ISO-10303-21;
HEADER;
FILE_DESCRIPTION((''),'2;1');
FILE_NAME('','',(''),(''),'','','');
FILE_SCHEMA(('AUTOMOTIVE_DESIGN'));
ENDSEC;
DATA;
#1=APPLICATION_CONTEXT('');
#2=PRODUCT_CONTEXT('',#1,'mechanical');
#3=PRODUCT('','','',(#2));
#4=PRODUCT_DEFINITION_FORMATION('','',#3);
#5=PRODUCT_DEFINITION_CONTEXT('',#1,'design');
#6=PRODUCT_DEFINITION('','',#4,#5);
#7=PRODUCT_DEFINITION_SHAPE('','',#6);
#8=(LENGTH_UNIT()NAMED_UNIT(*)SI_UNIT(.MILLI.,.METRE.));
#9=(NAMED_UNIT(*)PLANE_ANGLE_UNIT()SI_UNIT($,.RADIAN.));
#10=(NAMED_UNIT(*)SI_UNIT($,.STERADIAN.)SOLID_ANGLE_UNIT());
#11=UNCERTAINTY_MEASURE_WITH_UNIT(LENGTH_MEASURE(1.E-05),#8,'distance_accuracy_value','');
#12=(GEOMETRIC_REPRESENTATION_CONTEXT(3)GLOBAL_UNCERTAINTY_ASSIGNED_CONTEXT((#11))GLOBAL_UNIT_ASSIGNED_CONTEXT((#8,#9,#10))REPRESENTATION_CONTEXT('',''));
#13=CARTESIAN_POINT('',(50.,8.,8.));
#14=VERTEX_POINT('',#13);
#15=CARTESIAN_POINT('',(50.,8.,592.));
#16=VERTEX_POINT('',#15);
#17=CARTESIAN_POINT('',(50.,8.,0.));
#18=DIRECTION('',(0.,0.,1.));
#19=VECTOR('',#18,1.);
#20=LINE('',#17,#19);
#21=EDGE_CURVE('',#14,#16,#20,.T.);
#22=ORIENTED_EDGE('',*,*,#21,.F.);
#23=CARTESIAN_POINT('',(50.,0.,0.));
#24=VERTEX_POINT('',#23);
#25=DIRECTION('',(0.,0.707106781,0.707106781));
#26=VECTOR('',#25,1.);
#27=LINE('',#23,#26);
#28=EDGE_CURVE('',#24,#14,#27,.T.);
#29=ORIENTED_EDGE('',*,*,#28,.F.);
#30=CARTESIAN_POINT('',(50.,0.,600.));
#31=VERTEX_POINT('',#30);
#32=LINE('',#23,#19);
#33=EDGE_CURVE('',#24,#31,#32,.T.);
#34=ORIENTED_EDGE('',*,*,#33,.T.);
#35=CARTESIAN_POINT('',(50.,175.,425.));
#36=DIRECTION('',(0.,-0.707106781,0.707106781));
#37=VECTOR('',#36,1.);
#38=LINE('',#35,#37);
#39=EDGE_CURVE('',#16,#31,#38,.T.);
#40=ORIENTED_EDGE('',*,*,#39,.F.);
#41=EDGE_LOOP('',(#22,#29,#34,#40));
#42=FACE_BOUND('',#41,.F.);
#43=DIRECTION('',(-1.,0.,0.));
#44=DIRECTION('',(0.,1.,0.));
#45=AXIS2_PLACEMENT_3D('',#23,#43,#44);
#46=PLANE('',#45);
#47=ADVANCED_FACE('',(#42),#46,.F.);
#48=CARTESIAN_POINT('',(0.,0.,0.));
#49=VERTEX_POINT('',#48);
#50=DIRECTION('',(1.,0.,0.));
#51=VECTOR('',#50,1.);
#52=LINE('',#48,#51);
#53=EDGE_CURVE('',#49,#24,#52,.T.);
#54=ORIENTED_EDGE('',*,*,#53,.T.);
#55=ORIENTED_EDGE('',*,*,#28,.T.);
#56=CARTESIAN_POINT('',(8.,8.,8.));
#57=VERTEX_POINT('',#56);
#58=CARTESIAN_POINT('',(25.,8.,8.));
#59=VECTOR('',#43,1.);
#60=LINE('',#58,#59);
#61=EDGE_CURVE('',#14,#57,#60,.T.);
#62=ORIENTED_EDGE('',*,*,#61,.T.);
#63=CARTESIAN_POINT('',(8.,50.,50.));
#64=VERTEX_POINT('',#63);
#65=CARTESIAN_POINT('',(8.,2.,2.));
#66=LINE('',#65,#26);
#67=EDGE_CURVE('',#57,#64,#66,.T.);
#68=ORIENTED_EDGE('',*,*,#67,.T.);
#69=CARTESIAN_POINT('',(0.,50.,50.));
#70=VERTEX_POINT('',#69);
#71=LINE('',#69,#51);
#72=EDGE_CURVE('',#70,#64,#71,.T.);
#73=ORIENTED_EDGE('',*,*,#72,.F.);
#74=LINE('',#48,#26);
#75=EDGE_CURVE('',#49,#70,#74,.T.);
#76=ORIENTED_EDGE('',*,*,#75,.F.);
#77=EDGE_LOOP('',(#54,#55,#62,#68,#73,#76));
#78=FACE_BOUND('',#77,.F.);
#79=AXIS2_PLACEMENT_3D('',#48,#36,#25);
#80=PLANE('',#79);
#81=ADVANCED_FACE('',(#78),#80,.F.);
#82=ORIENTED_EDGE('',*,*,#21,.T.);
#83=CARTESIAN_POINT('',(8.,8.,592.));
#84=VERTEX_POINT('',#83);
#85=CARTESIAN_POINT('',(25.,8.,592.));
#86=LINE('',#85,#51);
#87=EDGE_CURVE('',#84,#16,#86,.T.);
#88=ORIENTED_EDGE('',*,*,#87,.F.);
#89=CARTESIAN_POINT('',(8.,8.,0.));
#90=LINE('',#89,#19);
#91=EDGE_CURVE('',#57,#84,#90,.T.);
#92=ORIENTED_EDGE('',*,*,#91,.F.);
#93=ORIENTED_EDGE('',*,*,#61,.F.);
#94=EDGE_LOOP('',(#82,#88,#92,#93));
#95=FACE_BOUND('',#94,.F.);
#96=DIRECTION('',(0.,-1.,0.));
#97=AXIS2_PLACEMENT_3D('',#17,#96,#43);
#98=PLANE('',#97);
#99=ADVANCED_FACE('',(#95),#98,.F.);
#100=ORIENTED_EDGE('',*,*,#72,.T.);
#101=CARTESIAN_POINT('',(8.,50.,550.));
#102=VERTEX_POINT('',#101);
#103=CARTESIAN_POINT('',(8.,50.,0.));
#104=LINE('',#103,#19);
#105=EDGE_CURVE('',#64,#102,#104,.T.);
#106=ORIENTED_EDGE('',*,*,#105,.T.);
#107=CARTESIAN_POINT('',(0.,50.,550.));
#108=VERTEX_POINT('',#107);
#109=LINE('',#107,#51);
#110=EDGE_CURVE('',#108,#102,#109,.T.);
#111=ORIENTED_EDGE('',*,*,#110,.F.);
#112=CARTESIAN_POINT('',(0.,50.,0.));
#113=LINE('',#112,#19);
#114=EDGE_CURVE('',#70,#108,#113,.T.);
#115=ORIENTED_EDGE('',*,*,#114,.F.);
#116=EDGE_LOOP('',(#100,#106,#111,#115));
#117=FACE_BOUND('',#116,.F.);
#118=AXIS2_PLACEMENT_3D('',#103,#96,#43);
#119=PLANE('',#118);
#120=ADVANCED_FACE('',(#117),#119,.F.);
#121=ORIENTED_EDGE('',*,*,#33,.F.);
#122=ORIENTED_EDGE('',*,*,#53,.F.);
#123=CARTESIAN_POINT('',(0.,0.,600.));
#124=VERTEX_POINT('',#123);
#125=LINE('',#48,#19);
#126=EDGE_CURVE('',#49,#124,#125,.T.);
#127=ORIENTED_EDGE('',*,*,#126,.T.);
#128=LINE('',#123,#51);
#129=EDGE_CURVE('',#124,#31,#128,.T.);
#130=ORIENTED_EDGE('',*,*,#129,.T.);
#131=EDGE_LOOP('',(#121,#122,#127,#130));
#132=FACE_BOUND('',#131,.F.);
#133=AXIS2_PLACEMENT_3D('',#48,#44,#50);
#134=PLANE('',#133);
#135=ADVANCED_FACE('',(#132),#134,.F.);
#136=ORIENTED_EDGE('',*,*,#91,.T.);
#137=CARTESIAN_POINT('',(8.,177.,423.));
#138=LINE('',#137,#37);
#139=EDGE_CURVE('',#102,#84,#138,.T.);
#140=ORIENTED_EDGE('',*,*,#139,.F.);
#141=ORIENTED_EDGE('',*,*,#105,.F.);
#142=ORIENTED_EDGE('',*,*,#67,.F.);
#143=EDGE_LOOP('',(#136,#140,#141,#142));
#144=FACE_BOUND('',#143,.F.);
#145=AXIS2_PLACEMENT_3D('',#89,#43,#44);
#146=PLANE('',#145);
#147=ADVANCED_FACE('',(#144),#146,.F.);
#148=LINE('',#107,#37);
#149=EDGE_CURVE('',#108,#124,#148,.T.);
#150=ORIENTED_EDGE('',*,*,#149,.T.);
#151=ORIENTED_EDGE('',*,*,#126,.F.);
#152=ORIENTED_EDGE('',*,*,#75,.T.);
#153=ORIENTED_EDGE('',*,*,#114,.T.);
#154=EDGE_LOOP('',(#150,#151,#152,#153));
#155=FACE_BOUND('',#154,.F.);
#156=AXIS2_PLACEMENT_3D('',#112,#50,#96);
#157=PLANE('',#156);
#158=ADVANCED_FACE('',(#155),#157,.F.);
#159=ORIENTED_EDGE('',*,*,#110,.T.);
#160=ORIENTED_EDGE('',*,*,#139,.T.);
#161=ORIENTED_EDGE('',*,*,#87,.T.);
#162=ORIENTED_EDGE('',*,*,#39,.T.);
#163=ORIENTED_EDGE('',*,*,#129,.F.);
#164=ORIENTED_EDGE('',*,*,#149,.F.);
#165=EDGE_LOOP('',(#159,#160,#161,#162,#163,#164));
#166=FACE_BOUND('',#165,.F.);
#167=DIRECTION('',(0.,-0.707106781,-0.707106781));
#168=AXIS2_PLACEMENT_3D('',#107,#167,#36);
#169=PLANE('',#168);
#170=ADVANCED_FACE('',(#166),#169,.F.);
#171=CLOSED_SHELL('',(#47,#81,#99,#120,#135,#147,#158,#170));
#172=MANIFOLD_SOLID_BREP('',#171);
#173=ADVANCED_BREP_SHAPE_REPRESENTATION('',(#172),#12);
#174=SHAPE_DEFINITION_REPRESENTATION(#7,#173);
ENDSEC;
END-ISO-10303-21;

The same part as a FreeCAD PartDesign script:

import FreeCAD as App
import Part
import Sketcher
from FreeCAD import Vector
Q = App.Units.Quantity


def add_polygon(sketch, points):
    """Adds a closed chain of lines whose ends are joined by coincident constraints."""
    first, n = sketch.GeometryCount, len(points)
    for a, b in zip(points, points[1:] + points[:1]):
        sketch.addGeometry(Part.LineSegment(App.Vector(*a, 0), App.Vector(*b, 0)), False)
    for i in range(n):
        sketch.addConstraint(Sketcher.Constraint("Coincident", first + i, 2, first + (i + 1) % n, 1))

doc = App.newDocument("Part")
body = doc.addObject("PartDesign::Body", "Body")

# Sketch on XY plane
sketch1 = body.newObject("Sketcher::SketchObject", "Sketch")
sketch1.AttachmentSupport = (doc.getObject("XY_Plane"), [""])
sketch1.MapMode = "FlatFace"
add_polygon(sketch1, [(0, 50), (0, 0), (50, 0), (50, 8), (8, 8), (8, 50)])  # lines 0-5
sketch1.addConstraint(Sketcher.Constraint("Vertical", 0))
sketch1.addConstraint(Sketcher.Constraint("Horizontal", 1))
sketch1.addConstraint(Sketcher.Constraint("Vertical", 2))
sketch1.addConstraint(Sketcher.Constraint("Horizontal", 3))
sketch1.addConstraint(Sketcher.Constraint("Vertical", 4))
sketch1.addConstraint(Sketcher.Constraint("Horizontal", 5))
sketch1.addConstraint(Sketcher.Constraint("Coincident", 0, 2, -1, 1))
sketch1.addConstraint(Sketcher.Constraint("Equal", 1, 0))
sketch1.addConstraint(Sketcher.Constraint("Equal", 5, 2))
sketch1.addConstraint(Sketcher.Constraint("DistanceX", 1, 1, 1, 2, Q("50 mm")))
sketch1.addConstraint(Sketcher.Constraint("DistanceX", 3, 2, 3, 1, Q("42 mm")))
pad1 = body.newObject("PartDesign::Pad", "Pad")
pad1.Profile = sketch1
pad1.Length = 600

# Sketch on YZ plane
sketch2 = body.newObject("Sketcher::SketchObject", "Sketch001")
sketch2.AttachmentSupport = (doc.getObject("YZ_Plane"), [""])
sketch2.MapMode = "FlatFace"
add_polygon(sketch2, [(50, 550), (0, 600), (50, 600)])  # lines 0-2
sketch2.addConstraint(Sketcher.Constraint("Horizontal", 1))
sketch2.addConstraint(Sketcher.Constraint("Vertical", 2))
sketch2.addConstraint(Sketcher.Constraint("PointOnObject", 0, 2, -2))
sketch2.addConstraint(Sketcher.Constraint("Equal", 1, 2))
sketch2.addConstraint(Sketcher.Constraint("DistanceX", 1, 1, 1, 2, Q("50 mm")))
sketch2.addConstraint(Sketcher.Constraint("DistanceY", -1, 1, 0, 2, Q("600 mm")))
pocket1 = body.newObject("PartDesign::Pocket", "Pocket")
pocket1.Profile = sketch2
pocket1.Type = "ThroughAll"
pocket1.Reversed = True

# Sketch on YZ plane
sketch3 = body.newObject("Sketcher::SketchObject", "Sketch002")
sketch3.AttachmentSupport = (doc.getObject("YZ_Plane"), [""])
sketch3.MapMode = "FlatFace"
add_polygon(sketch3, [(50, 0), (0, 0), (50, 50)])  # lines 0-2
sketch3.addConstraint(Sketcher.Constraint("Horizontal", 0))
sketch3.addConstraint(Sketcher.Constraint("Vertical", 2))
sketch3.addConstraint(Sketcher.Constraint("Coincident", 0, 2, -1, 1))
sketch3.addConstraint(Sketcher.Constraint("Equal", 0, 2))
sketch3.addConstraint(Sketcher.Constraint("DistanceX", 0, 2, 0, 1, Q("50 mm")))
pocket2 = body.newObject("PartDesign::Pocket", "Pocket001")
pocket2.Profile = sketch3
pocket2.Type = "ThroughAll"
pocket2.Reversed = True

doc.recompute()
